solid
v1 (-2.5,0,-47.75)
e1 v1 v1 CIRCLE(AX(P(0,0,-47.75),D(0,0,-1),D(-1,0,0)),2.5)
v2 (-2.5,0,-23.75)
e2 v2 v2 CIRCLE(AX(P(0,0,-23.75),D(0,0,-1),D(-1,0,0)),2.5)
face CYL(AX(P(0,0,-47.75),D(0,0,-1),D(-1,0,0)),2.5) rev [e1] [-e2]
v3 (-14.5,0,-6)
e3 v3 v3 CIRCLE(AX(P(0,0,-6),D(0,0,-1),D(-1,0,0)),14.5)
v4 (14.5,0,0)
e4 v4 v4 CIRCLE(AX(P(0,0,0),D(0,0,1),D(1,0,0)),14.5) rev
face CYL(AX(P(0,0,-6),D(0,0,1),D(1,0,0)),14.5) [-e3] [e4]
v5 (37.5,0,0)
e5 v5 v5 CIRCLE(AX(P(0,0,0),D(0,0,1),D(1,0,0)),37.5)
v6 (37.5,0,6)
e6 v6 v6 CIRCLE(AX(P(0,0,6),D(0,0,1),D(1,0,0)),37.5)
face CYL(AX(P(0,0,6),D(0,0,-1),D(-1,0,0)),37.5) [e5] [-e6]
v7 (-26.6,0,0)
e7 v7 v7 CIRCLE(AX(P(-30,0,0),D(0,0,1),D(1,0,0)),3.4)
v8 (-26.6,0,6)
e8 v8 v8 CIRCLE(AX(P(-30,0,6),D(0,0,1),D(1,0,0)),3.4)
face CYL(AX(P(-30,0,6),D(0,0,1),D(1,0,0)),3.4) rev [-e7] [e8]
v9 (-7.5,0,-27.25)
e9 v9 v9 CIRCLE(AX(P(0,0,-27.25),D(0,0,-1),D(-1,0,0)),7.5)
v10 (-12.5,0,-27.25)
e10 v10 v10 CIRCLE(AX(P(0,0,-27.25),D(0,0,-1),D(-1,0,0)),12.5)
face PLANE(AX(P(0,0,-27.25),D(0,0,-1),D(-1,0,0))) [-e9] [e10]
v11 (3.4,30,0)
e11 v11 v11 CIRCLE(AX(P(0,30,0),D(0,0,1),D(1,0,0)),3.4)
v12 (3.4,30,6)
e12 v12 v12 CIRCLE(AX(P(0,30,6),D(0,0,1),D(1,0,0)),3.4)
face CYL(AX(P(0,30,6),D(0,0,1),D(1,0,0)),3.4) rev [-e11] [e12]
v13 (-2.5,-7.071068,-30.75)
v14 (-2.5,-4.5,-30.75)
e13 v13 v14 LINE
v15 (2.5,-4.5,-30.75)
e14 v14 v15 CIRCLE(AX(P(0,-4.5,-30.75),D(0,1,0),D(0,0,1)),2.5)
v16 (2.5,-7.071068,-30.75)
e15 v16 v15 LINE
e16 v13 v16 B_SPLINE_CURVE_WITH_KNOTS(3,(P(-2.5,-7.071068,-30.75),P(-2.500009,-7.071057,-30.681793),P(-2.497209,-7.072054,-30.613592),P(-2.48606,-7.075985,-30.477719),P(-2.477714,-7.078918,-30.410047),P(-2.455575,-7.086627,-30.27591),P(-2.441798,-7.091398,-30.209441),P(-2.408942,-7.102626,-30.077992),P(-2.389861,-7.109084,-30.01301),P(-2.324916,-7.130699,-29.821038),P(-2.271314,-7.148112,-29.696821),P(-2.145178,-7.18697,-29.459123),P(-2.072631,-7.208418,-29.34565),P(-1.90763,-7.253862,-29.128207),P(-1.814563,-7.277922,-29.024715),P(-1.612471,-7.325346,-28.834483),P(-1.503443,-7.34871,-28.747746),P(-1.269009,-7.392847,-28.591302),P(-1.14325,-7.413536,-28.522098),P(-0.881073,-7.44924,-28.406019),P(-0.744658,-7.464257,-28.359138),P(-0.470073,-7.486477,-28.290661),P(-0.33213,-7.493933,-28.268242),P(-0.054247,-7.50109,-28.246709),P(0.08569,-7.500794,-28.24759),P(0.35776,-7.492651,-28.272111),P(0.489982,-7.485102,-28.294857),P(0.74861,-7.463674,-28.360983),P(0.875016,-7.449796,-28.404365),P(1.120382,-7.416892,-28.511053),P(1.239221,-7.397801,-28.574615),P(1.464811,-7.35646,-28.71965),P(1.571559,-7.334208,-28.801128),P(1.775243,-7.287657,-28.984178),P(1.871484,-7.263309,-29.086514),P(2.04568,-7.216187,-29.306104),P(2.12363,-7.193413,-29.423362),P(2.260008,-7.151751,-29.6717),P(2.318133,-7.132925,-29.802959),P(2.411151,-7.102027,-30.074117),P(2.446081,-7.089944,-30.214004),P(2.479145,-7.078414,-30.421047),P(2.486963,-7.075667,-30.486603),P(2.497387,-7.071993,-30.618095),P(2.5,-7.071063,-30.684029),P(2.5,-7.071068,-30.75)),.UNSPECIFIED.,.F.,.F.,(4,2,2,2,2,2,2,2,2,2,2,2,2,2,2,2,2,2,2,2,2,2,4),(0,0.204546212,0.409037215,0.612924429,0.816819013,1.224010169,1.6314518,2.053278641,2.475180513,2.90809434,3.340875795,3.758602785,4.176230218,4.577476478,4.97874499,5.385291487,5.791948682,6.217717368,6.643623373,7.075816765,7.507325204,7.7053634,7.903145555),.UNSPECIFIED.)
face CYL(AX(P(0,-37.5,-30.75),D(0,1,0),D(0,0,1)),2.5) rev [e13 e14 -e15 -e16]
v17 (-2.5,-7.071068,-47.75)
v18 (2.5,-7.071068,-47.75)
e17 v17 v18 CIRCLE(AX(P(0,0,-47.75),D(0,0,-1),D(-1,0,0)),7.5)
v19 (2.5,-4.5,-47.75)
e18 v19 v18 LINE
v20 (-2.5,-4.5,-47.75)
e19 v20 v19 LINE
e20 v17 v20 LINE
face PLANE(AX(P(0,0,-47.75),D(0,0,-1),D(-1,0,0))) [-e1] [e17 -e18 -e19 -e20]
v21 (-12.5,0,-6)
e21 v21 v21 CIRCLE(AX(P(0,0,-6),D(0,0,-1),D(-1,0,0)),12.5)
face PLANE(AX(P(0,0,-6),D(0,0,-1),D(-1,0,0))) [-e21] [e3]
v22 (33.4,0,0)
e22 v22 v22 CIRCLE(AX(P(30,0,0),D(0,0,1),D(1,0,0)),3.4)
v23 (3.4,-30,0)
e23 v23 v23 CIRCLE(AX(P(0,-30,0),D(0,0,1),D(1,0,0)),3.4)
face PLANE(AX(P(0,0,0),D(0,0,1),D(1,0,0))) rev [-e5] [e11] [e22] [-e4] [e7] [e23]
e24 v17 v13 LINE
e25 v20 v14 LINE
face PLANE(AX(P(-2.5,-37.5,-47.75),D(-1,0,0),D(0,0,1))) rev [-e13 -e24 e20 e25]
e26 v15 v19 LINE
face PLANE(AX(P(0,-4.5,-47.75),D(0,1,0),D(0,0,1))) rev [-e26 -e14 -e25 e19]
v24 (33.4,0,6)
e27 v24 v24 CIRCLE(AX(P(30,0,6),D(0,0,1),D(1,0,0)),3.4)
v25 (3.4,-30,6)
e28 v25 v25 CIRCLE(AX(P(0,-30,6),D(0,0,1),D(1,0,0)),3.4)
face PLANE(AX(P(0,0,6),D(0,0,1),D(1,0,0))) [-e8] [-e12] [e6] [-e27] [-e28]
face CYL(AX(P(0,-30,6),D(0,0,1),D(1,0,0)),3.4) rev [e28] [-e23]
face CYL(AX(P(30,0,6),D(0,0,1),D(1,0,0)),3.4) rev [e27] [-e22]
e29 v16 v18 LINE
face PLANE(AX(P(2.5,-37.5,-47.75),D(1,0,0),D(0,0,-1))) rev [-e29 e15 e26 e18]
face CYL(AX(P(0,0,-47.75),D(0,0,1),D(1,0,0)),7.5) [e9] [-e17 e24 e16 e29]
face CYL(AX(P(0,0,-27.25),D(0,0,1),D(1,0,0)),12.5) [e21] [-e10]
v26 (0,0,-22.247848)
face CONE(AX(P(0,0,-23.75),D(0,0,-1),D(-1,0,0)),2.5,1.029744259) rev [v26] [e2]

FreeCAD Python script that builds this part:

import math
import FreeCAD as App
import Part
import Sketcher

V = App.Vector
Q = App.Units.Quantity

doc = App.newDocument("Part")
params = doc.addObject("Spreadsheet::Sheet", "Params")
for row, (alias, value) in enumerate([
    ("sketch1_diameter", "75 mm"),
    ("pad1_length", "6 mm"),
    ("sketch2_diameter", "6.8 mm"),
    ("hole_diameter", "6.8 mm"),
    ("hole_depth", "23 mm"),
    ("sketch3_diameter", "29 mm"),
    ("pad2_length", "6 mm"),
    ("sketch4_diameter", "25 mm"),
    ("pad3_length", "21.25 mm"),
    ("sketch5_diameter", "15 mm"),
    ("pad4_length", "20.5 mm"),
    ("sketch6_diameter", "5 mm"),
    ("hole2_diameter", "5 mm"),
    ("hole2_depth", "24 mm"),
    ("sketch7_radius", "2.5 mm"),
    ("sketch7_height", "17 mm"),
], start=1):
    params.set(f"A{row}", alias)
    params.set(f"B{row}", "=" + value)
    params.setAlias(f"B{row}", alias)

body = doc.addObject("PartDesign::Body", "Body")

# Sketch on XY plane
sketch1 = body.newObject("Sketcher::SketchObject", "Sketch")
sketch1.AttachmentSupport = (doc.getObject("XY_Plane"), [""])
sketch1.MapMode = "FlatFace"
sketch1.addGeometry(Part.Circle(V(0, 0, 0), V(0, 0, 1), 37.5), False)
sketch1.addConstraint(Sketcher.Constraint("Coincident", 0, 3, -1, 1))
sketch1.addConstraint(Sketcher.Constraint("Diameter", 0, Q("75 mm")))
sketch1.setExpression("Constraints[1]", "Params.sketch1_diameter")
pad1 = body.newObject("PartDesign::Pad", "Pad")
pad1.Profile = sketch1
pad1.setExpression("Length", "Params.pad1_length")

# Sketch on XY plane
sketch2 = body.newObject("Sketcher::SketchObject", "Sketch001")
sketch2.AttachmentSupport = (doc.getObject("XY_Plane"), [""])
sketch2.MapMode = "FlatFace"
sketch2.AttachmentOffset = App.Placement(V(0, 0, 6), App.Rotation())
sketch2.addGeometry(Part.Circle(V(-30, 0, 0), V(0, 0, 1), 3.4), False)
sketch2.addGeometry(Part.Circle(V(0, 30, 0), V(0, 0, 1), 3.4), False)
sketch2.addGeometry(Part.Circle(V(30, 0, 0), V(0, 0, 1), 3.4), False)
sketch2.addGeometry(Part.Circle(V(0, -30, 0), V(0, 0, 1), 3.4), False)
sketch2.addConstraint(Sketcher.Constraint("Equal", 0, 1))
sketch2.addConstraint(Sketcher.Constraint("Equal", 1, 2))
sketch2.addConstraint(Sketcher.Constraint("Equal", 2, 3))
sketch2.addConstraint(Sketcher.Constraint("Symmetric", 0, 3, 2, 3, -1, 1))
sketch2.addConstraint(Sketcher.Constraint("Symmetric", 1, 3, 3, 3, -1, 1))
sketch2.addConstraint(Sketcher.Constraint("PointOnObject", 0, 3, -1))
sketch2.addConstraint(Sketcher.Constraint("PointOnObject", 1, 3, -2))
sketch2.addConstraint(Sketcher.Constraint("Diameter", 0, Q("6.8 mm")))
sketch2.addConstraint(Sketcher.Constraint("DistanceX", 0, 3, -1, 1, Q("30 mm")))
sketch2.addConstraint(Sketcher.Constraint("DistanceY", -1, 1, 1, 3, Q("30 mm")))
sketch2.setExpression("Constraints[7]", "Params.sketch2_diameter")
doc.recompute()
hole = body.newObject("PartDesign::Hole", "Hole")
hole.Profile = sketch2
hole.ThreadType = "None"
hole.setExpression("Diameter", "Params.hole_diameter")
hole.DepthType = "Dimension"
hole.setExpression("Depth", "Params.hole_depth")
hole.DrillPoint = "Angled"
hole.DrillPointAngle = 118

# Sketch on XY plane
sketch3 = body.newObject("Sketcher::SketchObject", "Sketch002")
sketch3.AttachmentSupport = (doc.getObject("XY_Plane"), [""])
sketch3.MapMode = "FlatFace"
sketch3.addGeometry(Part.Circle(V(0, 0, 0), V(0, 0, 1), 14.5), False)
sketch3.addConstraint(Sketcher.Constraint("Coincident", 0, 3, -1, 1))
sketch3.addConstraint(Sketcher.Constraint("Diameter", 0, Q("29 mm")))
sketch3.setExpression("Constraints[1]", "Params.sketch3_diameter")
pad2 = body.newObject("PartDesign::Pad", "Pad001")
pad2.Profile = sketch3
pad2.setExpression("Length", "Params.pad2_length")
pad2.Reversed = True

# Sketch on XY plane
sketch4 = body.newObject("Sketcher::SketchObject", "Sketch003")
sketch4.AttachmentSupport = (doc.getObject("XY_Plane"), [""])
sketch4.MapMode = "FlatFace"
sketch4.AttachmentOffset = App.Placement(V(0, 0, -6), App.Rotation())
sketch4.addGeometry(Part.Circle(V(0, 0, 0), V(0, 0, 1), 12.5), False)
sketch4.addConstraint(Sketcher.Constraint("Coincident", 0, 3, -1, 1))
sketch4.addConstraint(Sketcher.Constraint("Diameter", 0, Q("25 mm")))
sketch4.setExpression("Constraints[1]", "Params.sketch4_diameter")
pad3 = body.newObject("PartDesign::Pad", "Pad002")
pad3.Profile = sketch4
pad3.setExpression("Length", "Params.pad3_length")
pad3.Reversed = True

# Sketch on XY plane
sketch5 = body.newObject("Sketcher::SketchObject", "Sketch004")
sketch5.AttachmentSupport = (doc.getObject("XY_Plane"), [""])
sketch5.MapMode = "FlatFace"
sketch5.AttachmentOffset = App.Placement(V(0, 0, -27.25), App.Rotation())
sketch5.addGeometry(Part.Circle(V(0, 0, 0), V(0, 0, 1), 7.5), False)
sketch5.addConstraint(Sketcher.Constraint("Coincident", 0, 3, -1, 1))
sketch5.addConstraint(Sketcher.Constraint("Diameter", 0, Q("15 mm")))
sketch5.setExpression("Constraints[1]", "Params.sketch5_diameter")
pad4 = body.newObject("PartDesign::Pad", "Pad003")
pad4.Profile = sketch5
pad4.setExpression("Length", "Params.pad4_length")
pad4.Reversed = True

# Sketch on XY plane
sketch6 = body.newObject("Sketcher::SketchObject", "Sketch005")
sketch6.AttachmentSupport = (doc.getObject("XY_Plane"), [""])
sketch6.MapMode = "FlatFace"
sketch6.AttachmentOffset = App.Placement(V(0, 0, -47.75), App.Rotation())
sketch6.addGeometry(Part.Circle(V(0, 0, 0), V(0, 0, 1), 2.5), False)
sketch6.addConstraint(Sketcher.Constraint("Coincident", 0, 3, -1, 1))
sketch6.addConstraint(Sketcher.Constraint("Diameter", 0, Q("5 mm")))
sketch6.setExpression("Constraints[1]", "Params.sketch6_diameter")
doc.recompute()
hole2 = body.newObject("PartDesign::Hole", "Hole001")
hole2.Profile = sketch6
hole2.ThreadType = "None"
hole2.setExpression("Diameter", "Params.hole2_diameter")
hole2.DepthType = "Dimension"
hole2.setExpression("Depth", "Params.hole2_depth")
hole2.DrillPoint = "Angled"
hole2.DrillPointAngle = 118
hole2.Reversed = True

# Sketch on XZ plane
sketch7 = body.newObject("Sketcher::SketchObject", "Sketch006")
sketch7.AttachmentSupport = (doc.getObject("XZ_Plane"), [""])
sketch7.MapMode = "FlatFace"
sketch7.AttachmentOffset = App.Placement(V(0, 0, 4.5), App.Rotation())
sketch7.addGeometry(Part.LineSegment(V(2.5, -30.75, 0), V(2.5, -47.75, 0)), False)
sketch7.addGeometry(Part.ArcOfCircle(Part.Circle(V(0, -47.75, 0), V(0, 0, 1), 2.5), math.radians(180), math.radians(360)), False)
sketch7.addGeometry(Part.LineSegment(V(-2.5, -47.75, 0), V(-2.5, -30.75, 0)), False)
sketch7.addGeometry(Part.ArcOfCircle(Part.Circle(V(0, -30.75, 0), V(0, 0, 1), 2.5), math.radians(0), math.radians(180)), False)
sketch7.addConstraint(Sketcher.Constraint("Tangent", 0, 2, 1, 2))
sketch7.addConstraint(Sketcher.Constraint("Tangent", 1, 1, 2, 1))
sketch7.addConstraint(Sketcher.Constraint("Tangent", 2, 2, 3, 2))
sketch7.addConstraint(Sketcher.Constraint("Tangent", 3, 1, 0, 1))
sketch7.addConstraint(Sketcher.Constraint("Vertical", 0))
sketch7.addConstraint(Sketcher.Constraint("Vertical", 2))
sketch7.addConstraint(Sketcher.Constraint("PointOnObject", 1, 3, -2))
sketch7.addConstraint(Sketcher.Constraint("Radius", 1, Q("2.5 mm")))
sketch7.addConstraint(Sketcher.Constraint("DistanceY", 0, 2, 0, 1, Q("17 mm")))
sketch7.addConstraint(Sketcher.Constraint("DistanceY", 1, 3, -1, 1, Q("47.75 mm")))
sketch7.setExpression("Constraints[7]", "Params.sketch7_radius")
sketch7.setExpression("Constraints[8]", "Params.sketch7_height")
pocket1 = body.newObject("PartDesign::Pocket", "Pocket")
pocket1.Profile = sketch7
pocket1.Type = "ThroughAll"
pocket1.Reversed = True

doc.recompute()
